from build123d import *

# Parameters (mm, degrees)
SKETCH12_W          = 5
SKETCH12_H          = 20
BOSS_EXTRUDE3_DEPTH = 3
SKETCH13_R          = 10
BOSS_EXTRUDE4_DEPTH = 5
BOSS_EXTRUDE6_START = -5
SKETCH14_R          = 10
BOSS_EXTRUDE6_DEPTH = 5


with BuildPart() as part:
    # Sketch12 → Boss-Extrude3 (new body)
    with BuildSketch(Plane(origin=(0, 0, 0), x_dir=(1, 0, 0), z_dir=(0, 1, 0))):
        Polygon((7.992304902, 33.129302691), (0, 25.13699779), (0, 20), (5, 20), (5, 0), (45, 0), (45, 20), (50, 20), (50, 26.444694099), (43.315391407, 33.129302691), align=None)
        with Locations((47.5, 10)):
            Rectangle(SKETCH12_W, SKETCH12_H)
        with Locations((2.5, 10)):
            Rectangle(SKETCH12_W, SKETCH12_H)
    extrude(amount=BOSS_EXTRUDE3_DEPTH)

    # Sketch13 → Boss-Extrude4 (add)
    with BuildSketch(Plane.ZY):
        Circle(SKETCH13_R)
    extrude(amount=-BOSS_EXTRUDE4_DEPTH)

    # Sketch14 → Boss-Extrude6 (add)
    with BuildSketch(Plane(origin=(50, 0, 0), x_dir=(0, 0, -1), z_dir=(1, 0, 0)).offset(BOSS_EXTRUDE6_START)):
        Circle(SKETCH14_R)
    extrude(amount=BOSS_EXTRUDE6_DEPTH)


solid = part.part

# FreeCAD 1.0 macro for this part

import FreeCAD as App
import Part
import Sketcher

V = App.Vector
Q = App.Units.Quantity


def add_polygon(sketch, points):
    """Adds a closed chain of lines whose ends are joined by coincident constraints."""
    first, n = sketch.GeometryCount, len(points)
    for a, b in zip(points, points[1:] + points[:1]):
        sketch.addGeometry(Part.LineSegment(App.Vector(*a, 0), App.Vector(*b, 0)), False)
    for i in range(n):
        sketch.addConstraint(Sketcher.Constraint("Coincident", first + i, 2, first + (i + 1) % n, 1))

doc = App.newDocument("Part")
params = doc.addObject("Spreadsheet::Sheet", "Params")
for row, (alias, value) in enumerate([
    ("sketch1_width", "50 mm"),
    ("pad1_length", "3 mm"),
    ("sketch2_diameter", "20 mm"),
    ("pad2_length", "5 mm"),
    ("sketch3_diameter", "20 mm"),
    ("pad3_length", "5 mm"),
], start=1):
    params.set(f"A{row}", alias)
    params.set(f"B{row}", "=" + value)
    params.setAlias(f"B{row}", alias)

body = doc.addObject("PartDesign::Body", "Body")

# Sketch on XZ plane
sketch1 = body.newObject("Sketcher::SketchObject", "Sketch")
sketch1.AttachmentSupport = (doc.getObject("XZ_Plane"), [""])
sketch1.MapMode = "FlatFace"
add_polygon(sketch1, [(8, -33), (0, -25), (0, 0), (50, 0), (50, -26), (43, -33)])  # lines 0-5
sketch1.addConstraint([
    Sketcher.Constraint("Vertical", 1),
    Sketcher.Constraint("Horizontal", 2),
    Sketcher.Constraint("Vertical", 3),
    Sketcher.Constraint("Horizontal", 5),
    Sketcher.Constraint("Coincident", 1, 2, -1, 1),
    Sketcher.Constraint("Perpendicular", 0, 4),
    Sketcher.Constraint("DistanceX", 2, 1, 2, 2, Q("50 mm")),
    Sketcher.Constraint("Angle", 0, Q("135 deg")),
    Sketcher.Constraint("DistanceX", 5, 2, 5, 1, Q("35.323087 mm")),
    Sketcher.Constraint("DistanceY", 1, 1, 1, 2, Q("25.136998 mm")),
    Sketcher.Constraint("DistanceY", 3, 2, 3, 1, Q("26.444694 mm")),
])
sketch1.setExpression("Constraints[12]", "Params.sketch1_width")
pad1 = body.newObject("PartDesign::Pad", "Pad")
pad1.Profile = sketch1
pad1.setExpression("Length", "Params.pad1_length")
pad1.Reversed = True

# Sketch on YZ plane
sketch2 = body.newObject("Sketcher::SketchObject", "Sketch001")
sketch2.AttachmentSupport = (doc.getObject("YZ_Plane"), [""])
sketch2.MapMode = "FlatFace"
sketch2.addGeometry(Part.Circle(V(0, 0, 0), V(0, 0, 1), 10), False)
sketch2.addConstraint([
    Sketcher.Constraint("Coincident", 0, 3, -1, 1),
    Sketcher.Constraint("Diameter", 0, Q("20 mm")),
])
sketch2.setExpression("Constraints[1]", "Params.sketch2_diameter")
pad2 = body.newObject("PartDesign::Pad", "Pad001")
pad2.Profile = sketch2
pad2.setExpression("Length", "Params.pad2_length")

# Sketch on YZ plane
sketch3 = body.newObject("Sketcher::SketchObject", "Sketch002")
sketch3.AttachmentSupport = (doc.getObject("YZ_Plane"), [""])
sketch3.MapMode = "FlatFace"
sketch3.AttachmentOffset = App.Placement(V(0, 0, 45), App.Rotation())
sketch3.addGeometry(Part.Circle(V(0, 0, 0), V(0, 0, 1), 10), False)
sketch3.addConstraint([
    Sketcher.Constraint("Coincident", 0, 3, -1, 1),
    Sketcher.Constraint("Diameter", 0, Q("20 mm")),
])
sketch3.setExpression("Constraints[1]", "Params.sketch3_diameter")
pad3 = body.newObject("PartDesign::Pad", "Pad002")
pad3.Profile = sketch3
pad3.setExpression("Length", "Params.pad3_length")

doc.recompute()
